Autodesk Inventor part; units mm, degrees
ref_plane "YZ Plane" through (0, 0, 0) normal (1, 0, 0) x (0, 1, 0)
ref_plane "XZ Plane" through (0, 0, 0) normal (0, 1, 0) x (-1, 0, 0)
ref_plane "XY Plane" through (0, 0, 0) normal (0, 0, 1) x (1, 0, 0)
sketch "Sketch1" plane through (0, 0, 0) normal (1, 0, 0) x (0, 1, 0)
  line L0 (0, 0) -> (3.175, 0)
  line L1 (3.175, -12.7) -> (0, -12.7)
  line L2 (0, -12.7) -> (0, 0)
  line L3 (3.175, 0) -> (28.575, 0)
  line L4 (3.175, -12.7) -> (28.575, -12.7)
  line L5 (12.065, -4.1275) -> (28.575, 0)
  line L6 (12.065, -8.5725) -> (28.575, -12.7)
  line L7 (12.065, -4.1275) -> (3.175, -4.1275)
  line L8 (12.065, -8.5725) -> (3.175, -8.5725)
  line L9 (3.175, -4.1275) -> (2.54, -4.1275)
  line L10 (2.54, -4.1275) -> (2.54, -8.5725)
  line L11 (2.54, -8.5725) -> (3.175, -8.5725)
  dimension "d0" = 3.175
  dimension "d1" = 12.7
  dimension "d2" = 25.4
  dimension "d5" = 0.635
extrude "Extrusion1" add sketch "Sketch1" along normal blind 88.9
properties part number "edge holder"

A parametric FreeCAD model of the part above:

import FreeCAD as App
import Part
import Sketcher
Q = App.Units.Quantity


def add_polygon(sketch, points):
    """Adds a closed chain of lines whose ends are joined by coincident constraints."""
    first, n = sketch.GeometryCount, len(points)
    for a, b in zip(points, points[1:] + points[:1]):
        sketch.addGeometry(Part.LineSegment(App.Vector(*a, 0), App.Vector(*b, 0)), False)
    for i in range(n):
        sketch.addConstraint(Sketcher.Constraint("Coincident", first + i, 2, first + (i + 1) % n, 1))

doc = App.newDocument("Part")
body = doc.addObject("PartDesign::Body", "Body")

# Sketch on YZ plane
sketch1 = doc.addObject("Sketcher::SketchObject", "Sketch")
body.addObject(sketch1)
sketch1.AttachmentSupport = (doc.YZ_Plane, [""])
sketch1.MapMode = "FlatFace"
add_polygon(sketch1, [(28.6, 0), (0, 0), (0, -12.7), (28.6, -12.7), (12.1, -8.6), (2.5, -8.6), (2.5, -4.1), (12.1, -4.1)])  # lines 0-7
sketch1.addConstraint([
    Sketcher.Constraint("Horizontal", 0),
    Sketcher.Constraint("Vertical", 1),
    Sketcher.Constraint("Horizontal", 2),
    Sketcher.Constraint("Horizontal", 4),
    Sketcher.Constraint("Vertical", 5),
    Sketcher.Constraint("Horizontal", 6),
    Sketcher.Constraint("Coincident", 0, 2, -1, 1),
    Sketcher.Constraint("Vertical", 3, 2, 6, 2),
    Sketcher.Constraint("Vertical", 2, 2, 7, 2),
    Sketcher.Constraint("Equal", 3, 7),
    Sketcher.Constraint("DistanceY", 1, 2, 1, 1, Q("0.5 in")),
    Sketcher.Constraint("DistanceX", -1, 1, 4, 2, Q("0.1 in")),
    Sketcher.Constraint("Distance", 3, Q("0.67 in")),
    Sketcher.Constraint("DistanceX", 0, 2, 0, 1, Q("1.125 in")),
    Sketcher.Constraint("DistanceX", 4, 2, 4, 1, Q("0.375 in")),
])
pad1 = doc.addObject("PartDesign::Pad", "Pad")
body.addObject(pad1)
pad1.Profile = sketch1
pad1.Length = Q("3.5 in")

doc.recompute()
